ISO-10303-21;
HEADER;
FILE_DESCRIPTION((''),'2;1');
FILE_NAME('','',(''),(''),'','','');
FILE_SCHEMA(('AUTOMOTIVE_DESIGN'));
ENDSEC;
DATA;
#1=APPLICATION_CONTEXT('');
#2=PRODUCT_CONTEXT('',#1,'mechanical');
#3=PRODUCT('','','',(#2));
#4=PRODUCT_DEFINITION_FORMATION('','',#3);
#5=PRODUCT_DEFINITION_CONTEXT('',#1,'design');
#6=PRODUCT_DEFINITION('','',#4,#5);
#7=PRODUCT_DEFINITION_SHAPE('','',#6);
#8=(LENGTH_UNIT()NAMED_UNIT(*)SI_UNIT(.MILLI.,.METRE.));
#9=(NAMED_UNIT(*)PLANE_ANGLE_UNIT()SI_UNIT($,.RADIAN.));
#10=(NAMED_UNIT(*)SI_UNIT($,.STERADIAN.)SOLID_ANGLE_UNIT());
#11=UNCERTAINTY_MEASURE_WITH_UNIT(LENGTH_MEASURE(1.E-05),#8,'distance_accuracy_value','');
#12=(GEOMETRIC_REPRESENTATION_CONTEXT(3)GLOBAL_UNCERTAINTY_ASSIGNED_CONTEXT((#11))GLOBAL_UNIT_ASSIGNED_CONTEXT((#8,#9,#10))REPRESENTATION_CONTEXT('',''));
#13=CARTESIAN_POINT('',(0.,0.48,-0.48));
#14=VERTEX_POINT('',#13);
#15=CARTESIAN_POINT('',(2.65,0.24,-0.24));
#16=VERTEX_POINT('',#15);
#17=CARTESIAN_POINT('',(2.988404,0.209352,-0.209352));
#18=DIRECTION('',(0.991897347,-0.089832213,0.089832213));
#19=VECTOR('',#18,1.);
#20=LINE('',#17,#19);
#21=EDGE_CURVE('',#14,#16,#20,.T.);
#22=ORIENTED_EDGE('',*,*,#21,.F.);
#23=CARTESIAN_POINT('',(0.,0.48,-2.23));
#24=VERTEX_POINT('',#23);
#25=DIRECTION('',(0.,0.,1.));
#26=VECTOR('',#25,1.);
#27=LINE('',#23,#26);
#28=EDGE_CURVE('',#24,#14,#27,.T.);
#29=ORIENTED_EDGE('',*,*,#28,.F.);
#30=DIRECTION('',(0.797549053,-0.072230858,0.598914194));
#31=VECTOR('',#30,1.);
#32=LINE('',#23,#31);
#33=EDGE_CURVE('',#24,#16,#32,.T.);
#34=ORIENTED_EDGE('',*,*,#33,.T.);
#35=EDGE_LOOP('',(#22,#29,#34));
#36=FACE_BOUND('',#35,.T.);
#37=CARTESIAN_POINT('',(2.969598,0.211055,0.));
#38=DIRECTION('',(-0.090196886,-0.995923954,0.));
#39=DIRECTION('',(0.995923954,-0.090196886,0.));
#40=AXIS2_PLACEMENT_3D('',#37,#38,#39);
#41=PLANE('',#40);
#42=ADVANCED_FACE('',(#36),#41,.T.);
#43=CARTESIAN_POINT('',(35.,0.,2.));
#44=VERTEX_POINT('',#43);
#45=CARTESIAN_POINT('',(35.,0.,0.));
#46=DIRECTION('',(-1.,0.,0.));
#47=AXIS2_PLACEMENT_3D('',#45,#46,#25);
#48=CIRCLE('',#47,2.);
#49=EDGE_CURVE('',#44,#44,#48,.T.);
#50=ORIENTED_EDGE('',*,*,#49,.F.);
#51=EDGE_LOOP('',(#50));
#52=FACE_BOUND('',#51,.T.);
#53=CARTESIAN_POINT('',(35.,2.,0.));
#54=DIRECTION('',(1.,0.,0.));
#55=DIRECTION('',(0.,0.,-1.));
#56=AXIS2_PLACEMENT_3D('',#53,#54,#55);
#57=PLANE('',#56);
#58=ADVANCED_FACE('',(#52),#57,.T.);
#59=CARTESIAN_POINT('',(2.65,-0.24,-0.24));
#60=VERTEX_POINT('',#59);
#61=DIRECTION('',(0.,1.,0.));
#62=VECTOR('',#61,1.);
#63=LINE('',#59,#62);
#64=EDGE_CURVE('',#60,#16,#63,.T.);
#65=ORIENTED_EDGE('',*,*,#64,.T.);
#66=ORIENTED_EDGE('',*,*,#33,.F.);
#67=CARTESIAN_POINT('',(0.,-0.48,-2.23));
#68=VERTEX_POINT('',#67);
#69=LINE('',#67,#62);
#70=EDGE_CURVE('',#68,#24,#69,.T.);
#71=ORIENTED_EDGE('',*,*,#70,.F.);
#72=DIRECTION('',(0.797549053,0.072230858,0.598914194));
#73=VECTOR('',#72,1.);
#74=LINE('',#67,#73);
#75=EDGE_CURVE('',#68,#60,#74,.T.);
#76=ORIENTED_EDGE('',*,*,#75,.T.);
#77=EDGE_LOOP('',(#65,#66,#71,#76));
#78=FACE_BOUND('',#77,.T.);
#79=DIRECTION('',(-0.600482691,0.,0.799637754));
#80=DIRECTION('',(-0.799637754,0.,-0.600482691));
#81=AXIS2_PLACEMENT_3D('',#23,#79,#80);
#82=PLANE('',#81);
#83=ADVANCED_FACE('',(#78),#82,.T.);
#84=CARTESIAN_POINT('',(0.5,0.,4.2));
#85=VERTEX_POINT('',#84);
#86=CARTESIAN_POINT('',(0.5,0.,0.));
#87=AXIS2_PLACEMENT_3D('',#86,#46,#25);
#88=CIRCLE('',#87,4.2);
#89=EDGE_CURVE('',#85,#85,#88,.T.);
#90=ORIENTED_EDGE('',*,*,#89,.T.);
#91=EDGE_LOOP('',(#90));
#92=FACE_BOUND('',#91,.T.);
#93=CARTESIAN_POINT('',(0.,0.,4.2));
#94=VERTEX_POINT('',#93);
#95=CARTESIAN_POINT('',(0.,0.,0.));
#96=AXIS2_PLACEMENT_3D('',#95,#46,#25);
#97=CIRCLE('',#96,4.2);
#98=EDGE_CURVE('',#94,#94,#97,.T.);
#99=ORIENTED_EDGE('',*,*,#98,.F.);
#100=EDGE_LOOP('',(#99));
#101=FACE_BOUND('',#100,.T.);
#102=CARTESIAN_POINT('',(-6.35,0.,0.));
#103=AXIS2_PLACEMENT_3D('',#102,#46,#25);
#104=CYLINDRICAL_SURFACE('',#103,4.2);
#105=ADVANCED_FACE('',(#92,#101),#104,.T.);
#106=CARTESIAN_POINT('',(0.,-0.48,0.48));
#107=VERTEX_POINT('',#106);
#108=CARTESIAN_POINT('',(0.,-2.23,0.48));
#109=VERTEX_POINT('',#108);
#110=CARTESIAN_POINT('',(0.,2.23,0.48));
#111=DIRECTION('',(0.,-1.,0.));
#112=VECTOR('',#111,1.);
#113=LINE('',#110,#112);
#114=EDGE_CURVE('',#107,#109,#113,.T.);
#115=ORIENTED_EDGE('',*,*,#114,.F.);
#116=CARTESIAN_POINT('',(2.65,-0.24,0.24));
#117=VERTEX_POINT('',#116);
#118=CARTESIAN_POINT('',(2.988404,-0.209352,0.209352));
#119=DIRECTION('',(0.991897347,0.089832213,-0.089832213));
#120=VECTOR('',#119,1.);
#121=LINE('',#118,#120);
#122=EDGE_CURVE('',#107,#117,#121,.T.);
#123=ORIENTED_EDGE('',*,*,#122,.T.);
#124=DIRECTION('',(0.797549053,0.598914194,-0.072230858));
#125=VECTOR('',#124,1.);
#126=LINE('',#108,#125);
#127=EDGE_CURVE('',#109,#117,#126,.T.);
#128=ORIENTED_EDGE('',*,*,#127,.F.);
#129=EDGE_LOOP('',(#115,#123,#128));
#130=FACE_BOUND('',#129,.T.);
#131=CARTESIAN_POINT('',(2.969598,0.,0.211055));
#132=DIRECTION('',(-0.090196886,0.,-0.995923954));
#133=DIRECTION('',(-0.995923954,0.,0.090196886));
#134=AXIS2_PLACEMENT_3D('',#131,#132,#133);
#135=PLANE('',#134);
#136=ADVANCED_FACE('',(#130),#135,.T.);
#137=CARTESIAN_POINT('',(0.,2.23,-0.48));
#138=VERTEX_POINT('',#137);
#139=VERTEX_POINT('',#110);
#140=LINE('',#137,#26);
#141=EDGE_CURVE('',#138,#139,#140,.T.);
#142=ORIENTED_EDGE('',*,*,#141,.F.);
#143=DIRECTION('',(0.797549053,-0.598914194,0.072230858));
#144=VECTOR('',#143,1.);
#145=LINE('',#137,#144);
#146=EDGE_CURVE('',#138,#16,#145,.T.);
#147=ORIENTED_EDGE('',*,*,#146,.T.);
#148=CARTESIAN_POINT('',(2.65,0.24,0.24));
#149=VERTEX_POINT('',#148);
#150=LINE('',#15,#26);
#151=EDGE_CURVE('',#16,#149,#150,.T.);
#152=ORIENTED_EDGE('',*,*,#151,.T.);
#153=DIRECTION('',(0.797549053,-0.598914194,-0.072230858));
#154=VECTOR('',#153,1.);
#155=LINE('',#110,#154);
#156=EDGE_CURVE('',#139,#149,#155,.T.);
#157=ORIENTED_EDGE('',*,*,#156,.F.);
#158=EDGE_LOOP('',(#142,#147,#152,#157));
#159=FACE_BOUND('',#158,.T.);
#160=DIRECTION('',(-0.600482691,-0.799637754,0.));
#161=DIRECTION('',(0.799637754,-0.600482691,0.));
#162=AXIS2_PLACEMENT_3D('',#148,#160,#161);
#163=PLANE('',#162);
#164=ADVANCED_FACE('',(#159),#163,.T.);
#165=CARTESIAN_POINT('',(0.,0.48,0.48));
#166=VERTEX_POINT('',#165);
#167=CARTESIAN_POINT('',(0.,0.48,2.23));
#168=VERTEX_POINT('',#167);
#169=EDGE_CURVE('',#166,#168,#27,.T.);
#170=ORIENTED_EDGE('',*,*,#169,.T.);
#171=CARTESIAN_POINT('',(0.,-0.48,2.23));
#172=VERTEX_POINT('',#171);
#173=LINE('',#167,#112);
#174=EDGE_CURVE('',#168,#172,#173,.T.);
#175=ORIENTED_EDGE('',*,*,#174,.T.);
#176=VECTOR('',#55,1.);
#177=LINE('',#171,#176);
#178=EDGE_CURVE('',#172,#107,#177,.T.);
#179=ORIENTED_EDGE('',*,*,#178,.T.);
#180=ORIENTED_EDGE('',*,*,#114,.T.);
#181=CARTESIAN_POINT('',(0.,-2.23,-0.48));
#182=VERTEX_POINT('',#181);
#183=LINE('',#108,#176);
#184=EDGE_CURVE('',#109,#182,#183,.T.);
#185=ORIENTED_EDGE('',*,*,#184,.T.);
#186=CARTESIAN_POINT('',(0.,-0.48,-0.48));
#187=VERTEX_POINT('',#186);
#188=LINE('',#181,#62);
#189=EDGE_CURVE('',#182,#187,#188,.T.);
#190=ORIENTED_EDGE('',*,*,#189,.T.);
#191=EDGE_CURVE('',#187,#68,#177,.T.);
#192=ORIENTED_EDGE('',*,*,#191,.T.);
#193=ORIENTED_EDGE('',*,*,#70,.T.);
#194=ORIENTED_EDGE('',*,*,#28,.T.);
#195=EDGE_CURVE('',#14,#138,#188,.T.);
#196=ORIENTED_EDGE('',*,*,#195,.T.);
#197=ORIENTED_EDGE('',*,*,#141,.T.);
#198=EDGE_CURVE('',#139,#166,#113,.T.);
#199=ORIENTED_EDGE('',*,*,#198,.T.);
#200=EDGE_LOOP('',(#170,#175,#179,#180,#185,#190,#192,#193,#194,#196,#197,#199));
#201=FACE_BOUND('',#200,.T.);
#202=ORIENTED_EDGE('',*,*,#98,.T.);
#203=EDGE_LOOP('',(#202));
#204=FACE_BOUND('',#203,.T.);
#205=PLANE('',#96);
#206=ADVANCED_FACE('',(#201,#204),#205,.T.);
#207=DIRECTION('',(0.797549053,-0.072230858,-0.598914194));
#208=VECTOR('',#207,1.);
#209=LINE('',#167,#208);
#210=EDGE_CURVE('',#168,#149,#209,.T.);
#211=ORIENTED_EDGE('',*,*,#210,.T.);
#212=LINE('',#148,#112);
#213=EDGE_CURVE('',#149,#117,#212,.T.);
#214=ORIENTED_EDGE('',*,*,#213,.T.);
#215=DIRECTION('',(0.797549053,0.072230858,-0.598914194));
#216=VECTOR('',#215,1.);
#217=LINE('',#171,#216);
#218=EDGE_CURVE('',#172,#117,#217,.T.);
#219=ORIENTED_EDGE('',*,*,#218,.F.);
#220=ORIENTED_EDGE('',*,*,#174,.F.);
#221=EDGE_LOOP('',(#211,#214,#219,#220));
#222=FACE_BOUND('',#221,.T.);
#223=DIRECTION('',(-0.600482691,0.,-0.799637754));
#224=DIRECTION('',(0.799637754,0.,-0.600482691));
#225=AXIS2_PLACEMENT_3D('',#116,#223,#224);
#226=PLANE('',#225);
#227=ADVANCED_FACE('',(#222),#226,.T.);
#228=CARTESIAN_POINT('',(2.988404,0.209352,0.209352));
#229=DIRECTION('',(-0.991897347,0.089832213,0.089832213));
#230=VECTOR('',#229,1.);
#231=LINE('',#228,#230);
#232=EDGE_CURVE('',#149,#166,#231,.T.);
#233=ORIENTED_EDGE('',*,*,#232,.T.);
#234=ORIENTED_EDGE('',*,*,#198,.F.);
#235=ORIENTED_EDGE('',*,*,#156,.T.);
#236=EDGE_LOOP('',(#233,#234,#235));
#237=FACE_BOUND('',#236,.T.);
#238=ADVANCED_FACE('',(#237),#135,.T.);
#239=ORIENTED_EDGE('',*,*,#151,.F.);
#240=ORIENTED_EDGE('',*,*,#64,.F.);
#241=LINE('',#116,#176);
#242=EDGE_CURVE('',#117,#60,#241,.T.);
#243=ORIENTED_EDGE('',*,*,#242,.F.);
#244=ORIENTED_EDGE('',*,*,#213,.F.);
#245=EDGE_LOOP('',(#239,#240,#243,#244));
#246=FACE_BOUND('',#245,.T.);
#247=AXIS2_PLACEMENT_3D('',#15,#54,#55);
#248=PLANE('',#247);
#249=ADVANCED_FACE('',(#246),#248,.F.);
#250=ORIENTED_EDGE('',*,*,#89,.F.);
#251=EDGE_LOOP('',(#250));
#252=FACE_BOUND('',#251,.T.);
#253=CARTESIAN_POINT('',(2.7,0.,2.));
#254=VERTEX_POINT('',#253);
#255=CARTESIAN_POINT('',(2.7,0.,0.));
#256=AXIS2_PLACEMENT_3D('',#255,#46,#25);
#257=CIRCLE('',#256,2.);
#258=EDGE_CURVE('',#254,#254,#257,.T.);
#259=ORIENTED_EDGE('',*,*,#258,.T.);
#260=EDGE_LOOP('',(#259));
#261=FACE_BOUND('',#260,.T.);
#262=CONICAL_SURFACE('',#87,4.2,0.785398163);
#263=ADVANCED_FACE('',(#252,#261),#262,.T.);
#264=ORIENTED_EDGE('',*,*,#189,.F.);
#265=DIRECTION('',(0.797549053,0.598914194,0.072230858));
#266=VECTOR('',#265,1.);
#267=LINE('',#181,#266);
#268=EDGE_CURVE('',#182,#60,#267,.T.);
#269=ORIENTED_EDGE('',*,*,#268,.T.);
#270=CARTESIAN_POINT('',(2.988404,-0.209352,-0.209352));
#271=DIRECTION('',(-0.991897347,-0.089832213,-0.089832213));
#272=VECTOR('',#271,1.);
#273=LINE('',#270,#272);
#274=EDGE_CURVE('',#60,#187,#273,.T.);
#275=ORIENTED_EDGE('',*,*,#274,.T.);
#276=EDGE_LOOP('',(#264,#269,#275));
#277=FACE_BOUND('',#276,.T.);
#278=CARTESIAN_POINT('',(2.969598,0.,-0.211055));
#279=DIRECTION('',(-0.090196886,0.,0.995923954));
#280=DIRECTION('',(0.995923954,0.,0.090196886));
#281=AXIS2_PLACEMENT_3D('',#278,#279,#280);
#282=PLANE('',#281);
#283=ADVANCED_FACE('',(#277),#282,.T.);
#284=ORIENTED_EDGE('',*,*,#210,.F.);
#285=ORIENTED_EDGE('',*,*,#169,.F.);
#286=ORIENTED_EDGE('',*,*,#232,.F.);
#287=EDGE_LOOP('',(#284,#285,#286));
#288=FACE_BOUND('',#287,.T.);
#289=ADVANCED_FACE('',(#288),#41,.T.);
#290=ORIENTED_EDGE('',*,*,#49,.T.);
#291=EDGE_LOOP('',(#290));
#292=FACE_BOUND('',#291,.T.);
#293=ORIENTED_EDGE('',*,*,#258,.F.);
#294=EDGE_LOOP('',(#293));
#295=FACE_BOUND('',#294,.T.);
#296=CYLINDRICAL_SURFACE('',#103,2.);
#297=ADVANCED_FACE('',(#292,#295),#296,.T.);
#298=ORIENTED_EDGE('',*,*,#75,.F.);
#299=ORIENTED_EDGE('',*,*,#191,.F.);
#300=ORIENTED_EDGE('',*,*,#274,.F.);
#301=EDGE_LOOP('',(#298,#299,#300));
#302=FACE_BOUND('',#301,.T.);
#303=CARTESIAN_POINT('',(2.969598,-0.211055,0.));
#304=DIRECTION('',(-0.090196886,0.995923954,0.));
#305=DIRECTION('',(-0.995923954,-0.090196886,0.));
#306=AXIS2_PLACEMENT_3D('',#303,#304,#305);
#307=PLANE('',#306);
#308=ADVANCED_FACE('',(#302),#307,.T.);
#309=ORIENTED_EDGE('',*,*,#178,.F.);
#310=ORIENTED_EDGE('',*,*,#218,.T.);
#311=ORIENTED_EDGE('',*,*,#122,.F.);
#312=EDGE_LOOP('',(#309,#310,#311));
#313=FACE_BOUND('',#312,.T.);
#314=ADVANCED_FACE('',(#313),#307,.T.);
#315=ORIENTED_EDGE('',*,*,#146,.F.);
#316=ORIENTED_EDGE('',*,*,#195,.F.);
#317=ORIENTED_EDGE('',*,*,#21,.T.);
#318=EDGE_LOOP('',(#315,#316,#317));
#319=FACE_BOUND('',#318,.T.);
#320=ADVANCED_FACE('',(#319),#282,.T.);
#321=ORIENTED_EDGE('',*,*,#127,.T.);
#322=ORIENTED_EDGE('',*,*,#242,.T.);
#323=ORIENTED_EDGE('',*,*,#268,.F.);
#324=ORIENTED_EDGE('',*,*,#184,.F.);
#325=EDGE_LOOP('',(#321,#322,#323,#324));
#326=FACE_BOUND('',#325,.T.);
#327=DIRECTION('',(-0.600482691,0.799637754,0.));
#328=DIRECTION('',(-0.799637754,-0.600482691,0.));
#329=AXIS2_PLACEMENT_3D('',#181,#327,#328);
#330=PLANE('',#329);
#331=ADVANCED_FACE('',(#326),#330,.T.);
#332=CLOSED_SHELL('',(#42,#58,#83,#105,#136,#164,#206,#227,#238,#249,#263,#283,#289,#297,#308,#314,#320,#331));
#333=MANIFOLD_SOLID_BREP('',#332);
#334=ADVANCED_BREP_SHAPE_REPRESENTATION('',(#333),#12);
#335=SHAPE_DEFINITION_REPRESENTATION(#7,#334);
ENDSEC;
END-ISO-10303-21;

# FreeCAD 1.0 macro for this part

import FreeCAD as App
import Part
import Sketcher
Q = App.Units.Quantity

doc = App.newDocument("Part")
body = doc.addObject("PartDesign::Body", "Body")

# Sketch on XY plane
sketch1 = body.newObject("Sketcher::SketchObject", "Sketch")
sketch1.AttachmentSupport = (doc.getObject("XY_Plane"), [""])
sketch1.MapMode = "FlatFace"
sketch1.addGeometry([
    Part.LineSegment(App.Vector(0, 4.2, 0), App.Vector(0, 0, 0)),  # 0
    Part.LineSegment(App.Vector(0, 0, 0), App.Vector(35, 0, 0)),  # 1
    Part.LineSegment(App.Vector(35, 0, 0), App.Vector(35, 2, 0)),  # 2
    Part.LineSegment(App.Vector(35, 2, 0), App.Vector(2.7, 2, 0)),  # 3
    Part.LineSegment(App.Vector(2.7, 2, 0), App.Vector(0.5, 4.2, 0)),  # 4
    Part.LineSegment(App.Vector(0.5, 4.2, 0), App.Vector(0, 4.2, 0)),  # 5
], False)
sketch1.addConstraint([
    Sketcher.Constraint("Coincident", 0, 2, 1, 1),
    Sketcher.Constraint("Coincident", 1, 2, 2, 1),
    Sketcher.Constraint("Coincident", 2, 2, 3, 1),
    Sketcher.Constraint("Coincident", 3, 2, 4, 1),
    Sketcher.Constraint("Coincident", 4, 2, 5, 1),
    Sketcher.Constraint("Coincident", 5, 2, 0, 1),
    Sketcher.Constraint("Vertical", 0),
    Sketcher.Constraint("Horizontal", 1),
    Sketcher.Constraint("Vertical", 2),
    Sketcher.Constraint("Horizontal", 3),
    Sketcher.Constraint("Horizontal", 5),
    Sketcher.Constraint("Coincident", 0, 2, -1, 1),
    Sketcher.Constraint("DistanceX", 1, 1, 1, 2, 35.0),
    Sketcher.Constraint("DistanceY", 2, 1, 2, 2, 2.0),
    Sketcher.Constraint("Angle", 4, Q("135 deg")),
    Sketcher.Constraint("DistanceX", 3, 2, 3, 1, 32.3),
    Sketcher.Constraint("DistanceX", 5, 2, 5, 1, 0.5),
])
revolution = body.newObject("PartDesign::Revolution", "Revolution")
revolution.Profile = sketch1
revolution.ReferenceAxis = (sketch1, ["H_Axis"])
revolution.Angle = 360

# Sketch on YZ plane
sketch2 = body.newObject("Sketcher::SketchObject", "Sketch001")
sketch2.AttachmentSupport = (doc.getObject("YZ_Plane"), [""])
sketch2.MapMode = "FlatFace"
sketch2.addGeometry([
    Part.LineSegment(App.Vector(2.2, 0.5, 0), App.Vector(2.2, -0.5, 0)),
    Part.LineSegment(App.Vector(2.2, -0.5, 0), App.Vector(-2.2, -0.5, 0)),
    Part.LineSegment(App.Vector(-2.2, -0.5, 0), App.Vector(-2.2, 0.5, 0)),
    Part.LineSegment(App.Vector(-2.2, 0.5, 0), App.Vector(2.2, 0.5, 0)),
], False)
sketch2.addConstraint([
    Sketcher.Constraint("Coincident", 0, 2, 1, 1),
    Sketcher.Constraint("Coincident", 1, 2, 2, 1),
    Sketcher.Constraint("Coincident", 2, 2, 3, 1),
    Sketcher.Constraint("Coincident", 3, 2, 0, 1),
    Sketcher.Constraint("Vertical", 0),
    Sketcher.Constraint("Horizontal", 1),
    Sketcher.Constraint("Vertical", 2),
    Sketcher.Constraint("Horizontal", 3),
    Sketcher.Constraint("Symmetric", 0, 2, 2, 2, -1, 1),
    Sketcher.Constraint("DistanceX", 1, 2, 1, 1, 4.46),
    Sketcher.Constraint("DistanceY", 0, 2, 0, 1, 0.96),
])

# Sketch on YZ plane
sketch3 = body.newObject("Sketcher::SketchObject", "Sketch002")
sketch3.AttachmentSupport = (doc.getObject("YZ_Plane"), [""])
sketch3.MapMode = "FlatFace"
sketch3.AttachmentOffset = App.Placement(App.Vector(0, 0, 2.65), App.Rotation())
sketch3.addGeometry([
    Part.LineSegment(App.Vector(0.24, 0.24, 0), App.Vector(0.24, -0.24, 0)),
    Part.LineSegment(App.Vector(0.24, -0.24, 0), App.Vector(-0.24, -0.24, 0)),
    Part.LineSegment(App.Vector(-0.24, -0.24, 0), App.Vector(-0.24, 0.24, 0)),
    Part.LineSegment(App.Vector(-0.24, 0.24, 0), App.Vector(0.24, 0.24, 0)),
], False)
sketch3.addConstraint([
    Sketcher.Constraint("Coincident", 0, 2, 1, 1),
    Sketcher.Constraint("Coincident", 1, 2, 2, 1),
    Sketcher.Constraint("Coincident", 2, 2, 3, 1),
    Sketcher.Constraint("Coincident", 3, 2, 0, 1),
    Sketcher.Constraint("Vertical", 0),
    Sketcher.Constraint("Horizontal", 1),
    Sketcher.Constraint("Vertical", 2),
    Sketcher.Constraint("Horizontal", 3),
    Sketcher.Constraint("Symmetric", 0, 2, 2, 2, -1, 1),
    Sketcher.Constraint("Equal", 3, 0),
    Sketcher.Constraint("DistanceX", 1, 2, 1, 1, 0.48),
])

subtractiveloft = body.newObject("PartDesign::SubtractiveLoft", "SubtractiveLoft")
subtractiveloft.Profile = sketch2
subtractiveloft.Sections = [sketch3]
doc.recompute()

polarpattern = body.newObject("PartDesign::PolarPattern", "PolarPattern")
polarpattern.Originals = [subtractiveloft]
polarpattern.Axis = (doc.getObject("X_Axis"), [""])
polarpattern.Angle = 90
polarpattern.Occurrences = 2
body.Tip = polarpattern

doc.recompute()
